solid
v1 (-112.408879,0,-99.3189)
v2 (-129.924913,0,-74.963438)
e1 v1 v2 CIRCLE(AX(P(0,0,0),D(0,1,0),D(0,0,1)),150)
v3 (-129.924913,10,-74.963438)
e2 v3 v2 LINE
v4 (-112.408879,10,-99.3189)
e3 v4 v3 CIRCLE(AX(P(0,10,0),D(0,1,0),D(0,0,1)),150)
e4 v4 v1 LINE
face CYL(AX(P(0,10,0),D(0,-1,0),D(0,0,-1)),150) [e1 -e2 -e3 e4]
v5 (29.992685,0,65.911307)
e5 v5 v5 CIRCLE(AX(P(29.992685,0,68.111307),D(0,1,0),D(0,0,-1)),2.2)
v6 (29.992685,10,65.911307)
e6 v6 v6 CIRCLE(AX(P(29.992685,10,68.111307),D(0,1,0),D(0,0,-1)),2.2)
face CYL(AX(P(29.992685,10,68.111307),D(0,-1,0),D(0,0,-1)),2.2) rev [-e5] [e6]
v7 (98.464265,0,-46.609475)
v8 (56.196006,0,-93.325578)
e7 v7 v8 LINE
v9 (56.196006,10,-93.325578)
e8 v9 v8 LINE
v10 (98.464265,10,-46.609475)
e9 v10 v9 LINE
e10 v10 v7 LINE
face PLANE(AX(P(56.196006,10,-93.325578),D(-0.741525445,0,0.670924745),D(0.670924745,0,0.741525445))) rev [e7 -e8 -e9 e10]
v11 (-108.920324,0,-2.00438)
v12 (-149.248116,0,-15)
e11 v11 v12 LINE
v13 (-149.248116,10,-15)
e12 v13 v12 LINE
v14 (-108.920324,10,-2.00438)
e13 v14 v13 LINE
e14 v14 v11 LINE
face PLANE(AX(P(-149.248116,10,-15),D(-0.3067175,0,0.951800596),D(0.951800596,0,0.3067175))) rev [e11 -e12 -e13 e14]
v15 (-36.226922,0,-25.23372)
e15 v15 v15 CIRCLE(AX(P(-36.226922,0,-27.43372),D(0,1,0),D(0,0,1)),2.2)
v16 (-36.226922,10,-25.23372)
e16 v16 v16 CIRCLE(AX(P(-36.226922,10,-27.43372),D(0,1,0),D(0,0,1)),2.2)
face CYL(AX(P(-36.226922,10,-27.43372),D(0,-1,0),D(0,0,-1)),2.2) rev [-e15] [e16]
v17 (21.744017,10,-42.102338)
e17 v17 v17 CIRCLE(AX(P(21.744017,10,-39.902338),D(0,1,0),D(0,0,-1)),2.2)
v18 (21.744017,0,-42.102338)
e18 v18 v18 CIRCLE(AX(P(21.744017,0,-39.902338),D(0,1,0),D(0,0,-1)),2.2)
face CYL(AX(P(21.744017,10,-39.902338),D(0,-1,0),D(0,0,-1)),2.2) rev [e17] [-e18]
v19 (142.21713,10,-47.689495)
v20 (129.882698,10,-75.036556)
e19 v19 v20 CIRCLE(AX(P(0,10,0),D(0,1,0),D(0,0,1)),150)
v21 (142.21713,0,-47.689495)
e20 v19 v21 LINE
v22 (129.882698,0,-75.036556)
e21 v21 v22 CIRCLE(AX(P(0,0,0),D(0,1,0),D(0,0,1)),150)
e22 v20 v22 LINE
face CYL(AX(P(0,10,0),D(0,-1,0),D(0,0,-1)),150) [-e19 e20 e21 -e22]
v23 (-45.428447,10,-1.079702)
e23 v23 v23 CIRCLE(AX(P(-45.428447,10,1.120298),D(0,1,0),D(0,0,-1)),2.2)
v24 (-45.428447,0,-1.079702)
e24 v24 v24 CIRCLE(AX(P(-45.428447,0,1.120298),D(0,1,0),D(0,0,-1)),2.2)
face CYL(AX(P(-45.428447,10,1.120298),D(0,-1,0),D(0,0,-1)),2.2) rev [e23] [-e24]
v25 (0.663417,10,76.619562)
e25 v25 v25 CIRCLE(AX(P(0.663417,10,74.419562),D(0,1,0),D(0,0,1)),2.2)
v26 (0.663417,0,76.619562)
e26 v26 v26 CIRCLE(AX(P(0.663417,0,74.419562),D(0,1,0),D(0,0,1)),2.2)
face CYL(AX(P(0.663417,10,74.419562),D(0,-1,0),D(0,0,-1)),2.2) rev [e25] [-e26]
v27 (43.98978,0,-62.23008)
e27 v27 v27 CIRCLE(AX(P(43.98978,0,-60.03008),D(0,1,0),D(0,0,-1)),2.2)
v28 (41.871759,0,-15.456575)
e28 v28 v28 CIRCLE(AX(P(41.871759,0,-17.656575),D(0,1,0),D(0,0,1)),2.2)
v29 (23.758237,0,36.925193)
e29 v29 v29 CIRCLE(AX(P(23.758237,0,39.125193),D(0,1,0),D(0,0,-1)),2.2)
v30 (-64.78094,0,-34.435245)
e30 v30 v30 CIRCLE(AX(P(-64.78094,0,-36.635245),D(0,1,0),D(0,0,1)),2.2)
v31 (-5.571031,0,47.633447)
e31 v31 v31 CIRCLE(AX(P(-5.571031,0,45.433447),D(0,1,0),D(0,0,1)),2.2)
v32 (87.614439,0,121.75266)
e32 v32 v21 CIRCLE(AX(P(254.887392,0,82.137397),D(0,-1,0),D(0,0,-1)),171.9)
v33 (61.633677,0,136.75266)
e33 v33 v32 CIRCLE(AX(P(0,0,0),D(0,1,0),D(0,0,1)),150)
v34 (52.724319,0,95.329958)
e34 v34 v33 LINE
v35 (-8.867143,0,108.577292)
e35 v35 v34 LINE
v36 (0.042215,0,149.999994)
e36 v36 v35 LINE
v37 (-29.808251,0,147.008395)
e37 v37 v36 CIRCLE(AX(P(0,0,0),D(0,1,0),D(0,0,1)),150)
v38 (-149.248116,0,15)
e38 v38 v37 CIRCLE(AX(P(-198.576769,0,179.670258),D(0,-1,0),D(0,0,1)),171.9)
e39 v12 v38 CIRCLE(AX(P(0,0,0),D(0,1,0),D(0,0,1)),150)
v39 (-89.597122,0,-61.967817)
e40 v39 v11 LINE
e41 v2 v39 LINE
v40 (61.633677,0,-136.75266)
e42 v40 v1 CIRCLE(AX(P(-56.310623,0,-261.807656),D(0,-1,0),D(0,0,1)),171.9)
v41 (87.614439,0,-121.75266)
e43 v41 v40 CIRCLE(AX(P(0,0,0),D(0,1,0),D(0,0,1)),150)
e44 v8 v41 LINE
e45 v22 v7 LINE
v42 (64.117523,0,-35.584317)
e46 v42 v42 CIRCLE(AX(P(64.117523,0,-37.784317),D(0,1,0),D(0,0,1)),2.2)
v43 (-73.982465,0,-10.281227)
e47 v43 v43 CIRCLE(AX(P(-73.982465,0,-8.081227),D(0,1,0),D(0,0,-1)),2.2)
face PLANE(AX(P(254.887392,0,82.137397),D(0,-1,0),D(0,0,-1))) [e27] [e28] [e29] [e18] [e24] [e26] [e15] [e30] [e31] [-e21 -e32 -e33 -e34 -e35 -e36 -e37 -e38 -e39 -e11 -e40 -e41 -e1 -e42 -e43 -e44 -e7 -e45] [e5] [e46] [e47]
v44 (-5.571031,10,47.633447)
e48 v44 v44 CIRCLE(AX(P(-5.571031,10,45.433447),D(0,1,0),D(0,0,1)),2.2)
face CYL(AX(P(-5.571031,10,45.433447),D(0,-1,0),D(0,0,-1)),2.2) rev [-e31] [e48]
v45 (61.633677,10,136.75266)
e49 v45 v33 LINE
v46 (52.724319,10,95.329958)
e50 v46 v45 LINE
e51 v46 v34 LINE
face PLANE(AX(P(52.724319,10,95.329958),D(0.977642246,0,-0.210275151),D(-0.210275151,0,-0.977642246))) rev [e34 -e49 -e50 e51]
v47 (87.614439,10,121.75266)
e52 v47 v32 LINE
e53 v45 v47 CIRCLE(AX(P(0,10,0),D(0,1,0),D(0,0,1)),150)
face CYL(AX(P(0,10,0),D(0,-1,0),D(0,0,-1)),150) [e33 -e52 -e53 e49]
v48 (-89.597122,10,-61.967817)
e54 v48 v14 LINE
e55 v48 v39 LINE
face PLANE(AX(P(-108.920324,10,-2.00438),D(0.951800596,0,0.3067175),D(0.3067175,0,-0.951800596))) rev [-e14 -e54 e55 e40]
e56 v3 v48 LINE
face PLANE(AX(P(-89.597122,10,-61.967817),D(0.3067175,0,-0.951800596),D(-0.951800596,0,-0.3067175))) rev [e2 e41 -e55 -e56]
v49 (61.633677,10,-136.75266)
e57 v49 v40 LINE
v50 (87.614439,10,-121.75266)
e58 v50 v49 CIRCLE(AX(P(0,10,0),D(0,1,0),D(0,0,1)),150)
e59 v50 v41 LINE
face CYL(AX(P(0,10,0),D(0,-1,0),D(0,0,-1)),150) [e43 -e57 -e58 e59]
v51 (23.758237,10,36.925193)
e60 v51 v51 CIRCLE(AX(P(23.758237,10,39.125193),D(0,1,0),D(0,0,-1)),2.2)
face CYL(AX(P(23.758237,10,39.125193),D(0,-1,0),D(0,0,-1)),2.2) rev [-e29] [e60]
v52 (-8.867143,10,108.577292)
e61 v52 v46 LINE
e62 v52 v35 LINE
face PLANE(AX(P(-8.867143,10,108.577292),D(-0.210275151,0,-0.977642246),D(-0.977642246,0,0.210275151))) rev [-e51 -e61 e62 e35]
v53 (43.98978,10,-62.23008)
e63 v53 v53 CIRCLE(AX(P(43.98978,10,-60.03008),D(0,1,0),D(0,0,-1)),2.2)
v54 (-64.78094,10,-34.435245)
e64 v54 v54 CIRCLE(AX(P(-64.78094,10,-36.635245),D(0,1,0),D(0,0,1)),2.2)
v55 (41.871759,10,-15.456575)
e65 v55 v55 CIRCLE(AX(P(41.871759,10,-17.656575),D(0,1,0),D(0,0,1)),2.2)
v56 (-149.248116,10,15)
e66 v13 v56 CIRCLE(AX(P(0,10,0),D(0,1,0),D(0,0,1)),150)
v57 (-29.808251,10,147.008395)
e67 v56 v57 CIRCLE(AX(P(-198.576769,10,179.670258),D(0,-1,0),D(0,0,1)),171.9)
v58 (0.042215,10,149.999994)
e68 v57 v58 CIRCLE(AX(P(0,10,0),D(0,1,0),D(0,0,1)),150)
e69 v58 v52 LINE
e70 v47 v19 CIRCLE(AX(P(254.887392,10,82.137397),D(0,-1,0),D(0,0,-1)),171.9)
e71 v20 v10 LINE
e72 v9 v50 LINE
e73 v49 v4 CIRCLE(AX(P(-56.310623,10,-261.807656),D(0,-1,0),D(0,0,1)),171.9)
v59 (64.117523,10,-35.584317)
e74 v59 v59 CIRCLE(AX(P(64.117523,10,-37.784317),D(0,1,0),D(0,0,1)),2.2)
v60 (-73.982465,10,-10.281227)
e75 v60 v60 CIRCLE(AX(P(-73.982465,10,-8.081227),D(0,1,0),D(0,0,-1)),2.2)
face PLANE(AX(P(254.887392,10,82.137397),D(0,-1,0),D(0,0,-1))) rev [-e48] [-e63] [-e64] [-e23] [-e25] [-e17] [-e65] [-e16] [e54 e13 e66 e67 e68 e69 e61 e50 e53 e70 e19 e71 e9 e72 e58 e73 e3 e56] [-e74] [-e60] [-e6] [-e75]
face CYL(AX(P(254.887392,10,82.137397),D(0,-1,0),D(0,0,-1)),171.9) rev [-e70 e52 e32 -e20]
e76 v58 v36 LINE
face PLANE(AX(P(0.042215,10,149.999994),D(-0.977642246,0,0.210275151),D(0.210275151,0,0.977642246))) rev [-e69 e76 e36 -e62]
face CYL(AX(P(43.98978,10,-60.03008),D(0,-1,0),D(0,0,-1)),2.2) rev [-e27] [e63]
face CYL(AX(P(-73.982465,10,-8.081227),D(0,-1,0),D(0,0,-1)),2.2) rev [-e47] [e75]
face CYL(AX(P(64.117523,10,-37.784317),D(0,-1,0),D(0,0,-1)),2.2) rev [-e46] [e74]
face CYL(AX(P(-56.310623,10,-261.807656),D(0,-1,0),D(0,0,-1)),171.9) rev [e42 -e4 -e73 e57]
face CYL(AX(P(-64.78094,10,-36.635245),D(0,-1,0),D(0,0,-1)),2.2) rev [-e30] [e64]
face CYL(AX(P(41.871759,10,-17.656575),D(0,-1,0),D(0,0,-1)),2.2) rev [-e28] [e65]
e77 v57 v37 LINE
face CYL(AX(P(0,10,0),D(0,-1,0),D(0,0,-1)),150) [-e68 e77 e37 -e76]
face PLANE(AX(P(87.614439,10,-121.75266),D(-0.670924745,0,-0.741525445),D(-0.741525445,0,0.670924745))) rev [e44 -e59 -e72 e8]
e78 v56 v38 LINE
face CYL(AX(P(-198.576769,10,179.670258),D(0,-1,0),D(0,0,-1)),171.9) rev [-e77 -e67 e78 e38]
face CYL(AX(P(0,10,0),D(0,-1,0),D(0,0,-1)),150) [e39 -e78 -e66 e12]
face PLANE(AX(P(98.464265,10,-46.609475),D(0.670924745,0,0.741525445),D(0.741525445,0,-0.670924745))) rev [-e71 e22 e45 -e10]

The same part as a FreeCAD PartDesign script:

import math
import FreeCAD as App
import Part
import Sketcher

V = App.Vector

doc = App.newDocument("Part")
body = doc.addObject("PartDesign::Body", "Body")

sketch1 = body.newObject("Sketcher::SketchObject", "Sketch")
sketch1.AttachmentSupport = (doc.getObject("XZ_Plane"), [""])
sketch1.MapMode = "FlatFace"
sketch1.addGeometry([
    Part.LineSegment(V(0, 150, 0), V(-8.9, 108.6, 0)),
    Part.LineSegment(V(-8.9, 108.6, 0), V(52.7, 95.3, 0)),
    Part.LineSegment(V(52.7, 95.3, 0), V(61.6, 136.8, 0)),
    Part.ArcOfCircle(Part.Circle(V(0, 0, 0), V(0, 0, 1), 150), math.radians(54.26), math.radians(65.74)),
    Part.ArcOfCircle(Part.Circle(V(254.9, 82.1, 0), V(0, 0, 1), 171.9), math.radians(167), math.radians(229)),
    Part.ArcOfCircle(Part.Circle(V(0, 0, 0), V(0, 0, 1), 150), math.radians(-30.02), math.radians(-18.54)),
    Part.LineSegment(V(129.9, -75, 0), V(98.5, -46.6, 0)),
    Part.LineSegment(V(98.5, -46.6, 0), V(56.2, -93.3, 0)),
    Part.LineSegment(V(56.2, -93.3, 0), V(87.6, -121.8, 0)),
    Part.ArcOfCircle(Part.Circle(V(0, 0, 0), V(0, 0, 1), 150), math.radians(-65.74), math.radians(-54.26)),
    Part.ArcOfCircle(Part.Circle(V(-56.3, -261.8, 0), V(0, 0, 1), 171.9), math.radians(47), math.radians(109)),
    Part.ArcOfCircle(Part.Circle(V(0, 0, 0), V(0, 0, 1), 150), math.radians(-150.02), math.radians(-138.54)),
    Part.LineSegment(V(-129.9, -75, 0), V(-89.6, -62, 0)),
    Part.LineSegment(V(-89.6, -62, 0), V(-108.9, -2, 0)),
    Part.LineSegment(V(-108.9, -2, 0), V(-149.2, -15, 0)),
    Part.ArcOfCircle(Part.Circle(V(0, 0, 0), V(0, 0, 1), 150), math.radians(174.26), math.radians(185.74)),
    Part.ArcOfCircle(Part.Circle(V(-198.6, 179.7, 0), V(0, 0, 1), 171.9), math.radians(-73), math.radians(-11)),
    Part.ArcOfCircle(Part.Circle(V(0, 0, 0), V(0, 0, 1), 150), math.radians(89.98), math.radians(101.46)),
    Part.Circle(V(-5.6, 45.4, 0), V(0, 0, 1), 2.2),
    Part.Circle(V(0.7, 74.4, 0), V(0, 0, 1), 2.2),
    Part.Circle(V(30, 68.1, 0), V(0, 0, 1), 2.2),
    Part.Circle(V(23.8, 39.1, 0), V(0, 0, 1), 2.2),
    Part.Circle(V(-74, -8.1, 0), V(0, 0, 1), 2.2),
    Part.Circle(V(-45.4, 1.1, 0), V(0, 0, 1), 2.2),
    Part.Circle(V(-36.2, -27.4, 0), V(0, 0, 1), 2.2),
    Part.Circle(V(-64.8, -36.6, 0), V(0, 0, 1), 2.2),
    Part.Circle(V(41.9, -17.7, 0), V(0, 0, 1), 2.2),
    Part.Circle(V(21.7, -39.9, 0), V(0, 0, 1), 2.2),
    Part.Circle(V(64.1, -37.8, 0), V(0, 0, 1), 2.2),
    Part.Circle(V(44, -60, 0), V(0, 0, 1), 2.2),
], False)
sketch1.addConstraint([
    Sketcher.Constraint("Coincident", 0, 2, 1, 1),
    Sketcher.Constraint("Coincident", 1, 2, 2, 1),
    Sketcher.Constraint("Coincident", 2, 2, 3, 2),
    Sketcher.Constraint("Coincident", 3, 1, 4, 1),
    Sketcher.Constraint("Coincident", 4, 2, 5, 2),
    Sketcher.Constraint("Coincident", 5, 1, 6, 1),
    Sketcher.Constraint("Coincident", 6, 2, 7, 1),
    Sketcher.Constraint("Coincident", 7, 2, 8, 1),
    Sketcher.Constraint("Coincident", 8, 2, 9, 2),
    Sketcher.Constraint("Coincident", 9, 1, 10, 1),
    Sketcher.Constraint("Coincident", 10, 2, 11, 2),
    Sketcher.Constraint("Coincident", 11, 1, 12, 1),
    Sketcher.Constraint("Coincident", 12, 2, 13, 1),
    Sketcher.Constraint("Coincident", 13, 2, 14, 1),
    Sketcher.Constraint("Coincident", 14, 2, 15, 2),
    Sketcher.Constraint("Coincident", 15, 1, 16, 1),
    Sketcher.Constraint("Coincident", 16, 2, 17, 2),
    Sketcher.Constraint("Coincident", 17, 1, 0, 1),
    Sketcher.Constraint("Coincident", 3, 3, -1, 1),
    Sketcher.Constraint("Coincident", 5, 3, -1, 1),
    Sketcher.Constraint("Coincident", 9, 3, -1, 1),
    Sketcher.Constraint("Coincident", 11, 3, -1, 1),
    Sketcher.Constraint("Coincident", 15, 3, -1, 1),
    Sketcher.Constraint("Coincident", 17, 3, -1, 1),
    Sketcher.Constraint("Equal", 3, 5),
    Sketcher.Constraint("Equal", 5, 9),
    Sketcher.Constraint("Equal", 4, 10),
    Sketcher.Constraint("Equal", 9, 11),
    Sketcher.Constraint("Equal", 11, 15),
    Sketcher.Constraint("Equal", 10, 16),
    Sketcher.Constraint("Equal", 15, 17),
    Sketcher.Constraint("Equal", 18, 19),
    Sketcher.Constraint("Equal", 19, 20),
    Sketcher.Constraint("Equal", 20, 21),
    Sketcher.Constraint("Equal", 21, 22),
    Sketcher.Constraint("Equal", 22, 23),
    Sketcher.Constraint("Equal", 23, 24),
    Sketcher.Constraint("Equal", 24, 25),
    Sketcher.Constraint("Equal", 25, 26),
    Sketcher.Constraint("Equal", 26, 27),
    Sketcher.Constraint("Equal", 27, 28),
    Sketcher.Constraint("Equal", 28, 29),
    Sketcher.Constraint("Perpendicular", 0, 1),
    Sketcher.Constraint("Perpendicular", 1, 2),
    Sketcher.Constraint("Perpendicular", 6, 7),
    Sketcher.Constraint("Perpendicular", 7, 8),
    Sketcher.Constraint("Perpendicular", 12, 13),
    Sketcher.Constraint("Perpendicular", 13, 14),
    Sketcher.Constraint("Vertical", 3, 1, 8, 2),
    Sketcher.Constraint("Vertical", 2, 2, 9, 1),
    Sketcher.Constraint("Vertical", 14, 2, 15, 1),
    Sketcher.Constraint("Equal", 0, 2),
    Sketcher.Constraint("Equal", 2, 6),
    Sketcher.Constraint("Equal", 1, 7),
    Sketcher.Constraint("Equal", 6, 8),
    Sketcher.Constraint("Equal", 8, 12),
    Sketcher.Constraint("Equal", 7, 13),
    Sketcher.Constraint("Equal", 12, 14),
    Sketcher.Constraint("Radius", 3, 150.0),
    Sketcher.Constraint("Diameter", 18, 4.4),
    Sketcher.Constraint("Radius", 4, 171.9),
    Sketcher.Constraint("Distance", 1, 63.0),
    Sketcher.Constraint("DistanceY", 14, 2, -1, 1, 15.0),
    Sketcher.Constraint("DistanceY", 3, 1, 2, 2, 15.0),
    Sketcher.Constraint("Distance", 0, 42.37),
    Sketcher.Constraint("DistanceY", -1, 1, 23, 3, 1.120298),
    Sketcher.Constraint("DistanceY", 10, 2, -1, 1, 99.3189),
    Sketcher.Constraint("DistanceY", 21, 3, 0, 2, 69.4521),
    Sketcher.Constraint("DistanceX", 19, 3, 1, 2, 52.060901),
    Sketcher.Constraint("DistanceY", 1, 2, 2, 2, 41.422702),
    Sketcher.Constraint("DistanceY", 6, 2, 26, 3, 28.9529),
    Sketcher.Constraint("DistanceX", 12, 2, 24, 3, 53.3702),
    Sketcher.Constraint("DistanceX", 16, 3, -1, 1, 198.576769),
    Sketcher.Constraint("DistanceX", 18, 3, -1, 1, 5.571031),
    Sketcher.Constraint("DistanceY", 24, 3, -1, 1, 27.43372),
    Sketcher.Constraint("DistanceX", 25, 3, -1, 1, 64.78094),
    Sketcher.Constraint("DistanceX", -1, 1, 26, 3, 41.871759),
    Sketcher.Constraint("DistanceY", 27, 3, -1, 1, 39.902338),
    Sketcher.Constraint("DistanceX", -1, 1, 29, 3, 43.98978),
    Sketcher.Constraint("DistanceY", 29, 3, -1, 1, 60.03008),
    Sketcher.Constraint("DistanceX", -1, 1, 4, 2, 142.21713),
    Sketcher.Constraint("DistanceY", 3, 3, 19, 3, 74.419562),
    Sketcher.Constraint("DistanceY", 18, 3, 20, 3, 22.67786),
    Sketcher.Constraint("DistanceX", 19, 3, 21, 3, 23.094819),
    Sketcher.Constraint("DistanceY", 27, 3, 28, 3, 2.118021),
    Sketcher.Constraint("DistanceY", 20, 3, 1, 2, 27.21865),
    Sketcher.Constraint("DistanceX", 27, 3, 5, 1, 108.138681),
    Sketcher.Constraint("DistanceX", 11, 1, 22, 3, 55.942448),
    Sketcher.Constraint("DistanceY", 11, 1, 22, 3, 66.882211),
    Sketcher.Constraint("DistanceX", -1, 1, 20, 3, 29.992685),
    Sketcher.Constraint("DistanceX", 23, 3, -1, 1, 45.428447),
    Sketcher.Constraint("DistanceY", 25, 3, -1, 1, 36.635245),
    Sketcher.Constraint("DistanceX", -1, 1, 28, 3, 64.117523),
])
pad1 = body.newObject("PartDesign::Pad", "Pad")
pad1.Profile = sketch1
pad1.Length = 10
pad1.Reversed = True

doc.recompute()
